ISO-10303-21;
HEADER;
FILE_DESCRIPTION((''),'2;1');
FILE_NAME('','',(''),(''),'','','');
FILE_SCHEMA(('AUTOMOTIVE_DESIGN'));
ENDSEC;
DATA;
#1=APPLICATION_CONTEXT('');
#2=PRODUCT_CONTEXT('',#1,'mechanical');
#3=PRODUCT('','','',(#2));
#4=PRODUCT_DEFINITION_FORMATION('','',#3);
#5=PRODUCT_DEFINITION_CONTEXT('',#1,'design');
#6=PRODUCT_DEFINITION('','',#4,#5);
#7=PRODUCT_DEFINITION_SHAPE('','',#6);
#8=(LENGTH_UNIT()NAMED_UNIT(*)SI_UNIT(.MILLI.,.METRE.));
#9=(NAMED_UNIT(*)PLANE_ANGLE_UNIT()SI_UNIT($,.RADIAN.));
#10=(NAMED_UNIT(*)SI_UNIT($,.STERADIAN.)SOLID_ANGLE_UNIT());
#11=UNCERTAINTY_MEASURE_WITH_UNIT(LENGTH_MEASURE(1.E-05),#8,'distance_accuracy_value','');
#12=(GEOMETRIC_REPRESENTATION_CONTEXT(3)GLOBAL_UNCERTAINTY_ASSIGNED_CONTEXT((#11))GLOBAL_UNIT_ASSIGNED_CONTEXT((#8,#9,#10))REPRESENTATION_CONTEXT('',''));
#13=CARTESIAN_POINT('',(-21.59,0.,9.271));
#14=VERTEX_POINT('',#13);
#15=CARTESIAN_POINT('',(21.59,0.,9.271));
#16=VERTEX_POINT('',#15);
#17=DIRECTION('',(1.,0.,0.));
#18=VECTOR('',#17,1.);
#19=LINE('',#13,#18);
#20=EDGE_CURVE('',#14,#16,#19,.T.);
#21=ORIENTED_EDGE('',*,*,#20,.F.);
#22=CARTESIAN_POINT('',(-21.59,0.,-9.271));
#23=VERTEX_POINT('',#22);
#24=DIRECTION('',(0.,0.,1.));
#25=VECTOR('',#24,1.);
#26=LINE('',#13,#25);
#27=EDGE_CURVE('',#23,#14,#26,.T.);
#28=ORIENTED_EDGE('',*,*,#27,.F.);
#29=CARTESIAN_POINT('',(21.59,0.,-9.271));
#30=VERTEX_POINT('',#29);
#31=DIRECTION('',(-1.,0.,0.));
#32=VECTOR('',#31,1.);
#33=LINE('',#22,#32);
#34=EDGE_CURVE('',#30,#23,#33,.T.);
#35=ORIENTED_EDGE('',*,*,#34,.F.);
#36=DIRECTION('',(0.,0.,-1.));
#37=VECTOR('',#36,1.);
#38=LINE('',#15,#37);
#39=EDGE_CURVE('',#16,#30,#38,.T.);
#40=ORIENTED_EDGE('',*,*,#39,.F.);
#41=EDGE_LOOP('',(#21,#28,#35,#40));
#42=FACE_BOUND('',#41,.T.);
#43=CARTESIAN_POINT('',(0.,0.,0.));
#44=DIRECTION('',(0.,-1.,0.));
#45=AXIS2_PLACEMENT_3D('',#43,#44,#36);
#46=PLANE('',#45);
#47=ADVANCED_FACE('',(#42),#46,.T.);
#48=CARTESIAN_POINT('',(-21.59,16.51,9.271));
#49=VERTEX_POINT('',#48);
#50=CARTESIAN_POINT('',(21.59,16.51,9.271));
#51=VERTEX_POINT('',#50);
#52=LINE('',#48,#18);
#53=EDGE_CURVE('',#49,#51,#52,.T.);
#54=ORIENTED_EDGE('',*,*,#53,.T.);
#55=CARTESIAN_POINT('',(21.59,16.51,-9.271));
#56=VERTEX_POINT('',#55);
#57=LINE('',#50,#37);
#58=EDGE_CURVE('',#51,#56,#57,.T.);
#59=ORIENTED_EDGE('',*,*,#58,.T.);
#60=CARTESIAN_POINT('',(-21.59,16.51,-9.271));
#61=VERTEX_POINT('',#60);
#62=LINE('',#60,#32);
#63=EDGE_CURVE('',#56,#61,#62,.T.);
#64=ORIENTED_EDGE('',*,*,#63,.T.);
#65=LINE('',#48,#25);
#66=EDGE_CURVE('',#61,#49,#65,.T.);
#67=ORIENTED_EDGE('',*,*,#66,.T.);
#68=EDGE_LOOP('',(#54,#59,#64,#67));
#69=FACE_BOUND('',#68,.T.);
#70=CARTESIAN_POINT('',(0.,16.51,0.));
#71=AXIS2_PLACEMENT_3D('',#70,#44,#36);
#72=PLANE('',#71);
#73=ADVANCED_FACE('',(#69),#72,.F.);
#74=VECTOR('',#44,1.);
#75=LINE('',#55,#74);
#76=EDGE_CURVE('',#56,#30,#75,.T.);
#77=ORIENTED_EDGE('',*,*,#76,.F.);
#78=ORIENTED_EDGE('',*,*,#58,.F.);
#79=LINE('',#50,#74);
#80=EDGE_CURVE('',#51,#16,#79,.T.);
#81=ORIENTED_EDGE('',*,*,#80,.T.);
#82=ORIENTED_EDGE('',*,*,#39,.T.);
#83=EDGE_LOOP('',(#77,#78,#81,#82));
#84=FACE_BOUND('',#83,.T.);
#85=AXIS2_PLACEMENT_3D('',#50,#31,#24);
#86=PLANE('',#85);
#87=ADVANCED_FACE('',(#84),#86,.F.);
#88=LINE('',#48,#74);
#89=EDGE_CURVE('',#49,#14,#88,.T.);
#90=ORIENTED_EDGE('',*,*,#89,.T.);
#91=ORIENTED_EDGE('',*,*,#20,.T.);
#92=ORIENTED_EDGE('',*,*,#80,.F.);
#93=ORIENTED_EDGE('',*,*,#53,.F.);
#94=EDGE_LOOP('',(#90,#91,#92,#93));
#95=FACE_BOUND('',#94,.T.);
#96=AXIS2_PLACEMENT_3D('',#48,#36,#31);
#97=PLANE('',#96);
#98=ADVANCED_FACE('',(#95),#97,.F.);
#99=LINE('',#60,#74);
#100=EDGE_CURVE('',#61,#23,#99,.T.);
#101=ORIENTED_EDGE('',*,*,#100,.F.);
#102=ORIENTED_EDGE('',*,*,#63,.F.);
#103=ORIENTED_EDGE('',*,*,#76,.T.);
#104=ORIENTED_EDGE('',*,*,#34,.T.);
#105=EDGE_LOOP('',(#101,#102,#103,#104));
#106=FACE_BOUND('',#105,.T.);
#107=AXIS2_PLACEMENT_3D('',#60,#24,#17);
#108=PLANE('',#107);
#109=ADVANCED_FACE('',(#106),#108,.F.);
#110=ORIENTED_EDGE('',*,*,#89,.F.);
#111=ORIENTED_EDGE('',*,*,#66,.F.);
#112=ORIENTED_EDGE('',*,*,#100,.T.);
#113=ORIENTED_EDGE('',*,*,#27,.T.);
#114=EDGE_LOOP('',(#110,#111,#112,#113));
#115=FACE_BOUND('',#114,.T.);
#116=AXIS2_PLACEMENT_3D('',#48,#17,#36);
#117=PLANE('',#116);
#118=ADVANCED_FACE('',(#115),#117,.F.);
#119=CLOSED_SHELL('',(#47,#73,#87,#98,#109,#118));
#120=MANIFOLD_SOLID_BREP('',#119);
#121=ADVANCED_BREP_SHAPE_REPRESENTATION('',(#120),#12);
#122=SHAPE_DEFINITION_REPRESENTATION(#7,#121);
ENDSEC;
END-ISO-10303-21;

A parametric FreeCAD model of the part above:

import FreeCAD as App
import Part
import Sketcher

V = App.Vector
Q = App.Units.Quantity


def add_polygon(sketch, points):
    """Adds a closed chain of lines whose ends are joined by coincident constraints."""
    first, n = sketch.GeometryCount, len(points)
    for a, b in zip(points, points[1:] + points[:1]):
        sketch.addGeometry(Part.LineSegment(App.Vector(*a, 0), App.Vector(*b, 0)), False)
    for i in range(n):
        sketch.addConstraint(Sketcher.Constraint("Coincident", first + i, 2, first + (i + 1) % n, 1))

doc = App.newDocument("Part")
body = doc.addObject("PartDesign::Body", "Body")

# Sketch on XZ plane
sketch1 = body.newObject("Sketcher::SketchObject", "Sketch")
sketch1.AttachmentSupport = (doc.getObject("XZ_Plane"), [""])
sketch1.MapMode = "FlatFace"
add_polygon(sketch1, [(-22, -9), (-22, 9), (22, 9), (22, -9)])  # lines 0-3
sketch1.addConstraint(Sketcher.Constraint("Vertical", 0))
sketch1.addConstraint(Sketcher.Constraint("Horizontal", 1))
sketch1.addConstraint(Sketcher.Constraint("Vertical", 2))
sketch1.addConstraint(Sketcher.Constraint("Horizontal", 3))
sketch1.addConstraint(Sketcher.Constraint("Symmetric", 0, 2, 2, 2, -1, 1))
sketch1.addConstraint(Sketcher.Constraint("DistanceX", 1, 1, 1, 2, Q("1.7 in")))
sketch1.addConstraint(Sketcher.Constraint("DistanceY", 0, 1, 0, 2, Q("0.73 in")))
pad1 = body.newObject("PartDesign::Pad", "Pad")
pad1.Profile = sketch1
pad1.Length = Q("0.65 in")
pad1.Reversed = True

doc.recompute()
